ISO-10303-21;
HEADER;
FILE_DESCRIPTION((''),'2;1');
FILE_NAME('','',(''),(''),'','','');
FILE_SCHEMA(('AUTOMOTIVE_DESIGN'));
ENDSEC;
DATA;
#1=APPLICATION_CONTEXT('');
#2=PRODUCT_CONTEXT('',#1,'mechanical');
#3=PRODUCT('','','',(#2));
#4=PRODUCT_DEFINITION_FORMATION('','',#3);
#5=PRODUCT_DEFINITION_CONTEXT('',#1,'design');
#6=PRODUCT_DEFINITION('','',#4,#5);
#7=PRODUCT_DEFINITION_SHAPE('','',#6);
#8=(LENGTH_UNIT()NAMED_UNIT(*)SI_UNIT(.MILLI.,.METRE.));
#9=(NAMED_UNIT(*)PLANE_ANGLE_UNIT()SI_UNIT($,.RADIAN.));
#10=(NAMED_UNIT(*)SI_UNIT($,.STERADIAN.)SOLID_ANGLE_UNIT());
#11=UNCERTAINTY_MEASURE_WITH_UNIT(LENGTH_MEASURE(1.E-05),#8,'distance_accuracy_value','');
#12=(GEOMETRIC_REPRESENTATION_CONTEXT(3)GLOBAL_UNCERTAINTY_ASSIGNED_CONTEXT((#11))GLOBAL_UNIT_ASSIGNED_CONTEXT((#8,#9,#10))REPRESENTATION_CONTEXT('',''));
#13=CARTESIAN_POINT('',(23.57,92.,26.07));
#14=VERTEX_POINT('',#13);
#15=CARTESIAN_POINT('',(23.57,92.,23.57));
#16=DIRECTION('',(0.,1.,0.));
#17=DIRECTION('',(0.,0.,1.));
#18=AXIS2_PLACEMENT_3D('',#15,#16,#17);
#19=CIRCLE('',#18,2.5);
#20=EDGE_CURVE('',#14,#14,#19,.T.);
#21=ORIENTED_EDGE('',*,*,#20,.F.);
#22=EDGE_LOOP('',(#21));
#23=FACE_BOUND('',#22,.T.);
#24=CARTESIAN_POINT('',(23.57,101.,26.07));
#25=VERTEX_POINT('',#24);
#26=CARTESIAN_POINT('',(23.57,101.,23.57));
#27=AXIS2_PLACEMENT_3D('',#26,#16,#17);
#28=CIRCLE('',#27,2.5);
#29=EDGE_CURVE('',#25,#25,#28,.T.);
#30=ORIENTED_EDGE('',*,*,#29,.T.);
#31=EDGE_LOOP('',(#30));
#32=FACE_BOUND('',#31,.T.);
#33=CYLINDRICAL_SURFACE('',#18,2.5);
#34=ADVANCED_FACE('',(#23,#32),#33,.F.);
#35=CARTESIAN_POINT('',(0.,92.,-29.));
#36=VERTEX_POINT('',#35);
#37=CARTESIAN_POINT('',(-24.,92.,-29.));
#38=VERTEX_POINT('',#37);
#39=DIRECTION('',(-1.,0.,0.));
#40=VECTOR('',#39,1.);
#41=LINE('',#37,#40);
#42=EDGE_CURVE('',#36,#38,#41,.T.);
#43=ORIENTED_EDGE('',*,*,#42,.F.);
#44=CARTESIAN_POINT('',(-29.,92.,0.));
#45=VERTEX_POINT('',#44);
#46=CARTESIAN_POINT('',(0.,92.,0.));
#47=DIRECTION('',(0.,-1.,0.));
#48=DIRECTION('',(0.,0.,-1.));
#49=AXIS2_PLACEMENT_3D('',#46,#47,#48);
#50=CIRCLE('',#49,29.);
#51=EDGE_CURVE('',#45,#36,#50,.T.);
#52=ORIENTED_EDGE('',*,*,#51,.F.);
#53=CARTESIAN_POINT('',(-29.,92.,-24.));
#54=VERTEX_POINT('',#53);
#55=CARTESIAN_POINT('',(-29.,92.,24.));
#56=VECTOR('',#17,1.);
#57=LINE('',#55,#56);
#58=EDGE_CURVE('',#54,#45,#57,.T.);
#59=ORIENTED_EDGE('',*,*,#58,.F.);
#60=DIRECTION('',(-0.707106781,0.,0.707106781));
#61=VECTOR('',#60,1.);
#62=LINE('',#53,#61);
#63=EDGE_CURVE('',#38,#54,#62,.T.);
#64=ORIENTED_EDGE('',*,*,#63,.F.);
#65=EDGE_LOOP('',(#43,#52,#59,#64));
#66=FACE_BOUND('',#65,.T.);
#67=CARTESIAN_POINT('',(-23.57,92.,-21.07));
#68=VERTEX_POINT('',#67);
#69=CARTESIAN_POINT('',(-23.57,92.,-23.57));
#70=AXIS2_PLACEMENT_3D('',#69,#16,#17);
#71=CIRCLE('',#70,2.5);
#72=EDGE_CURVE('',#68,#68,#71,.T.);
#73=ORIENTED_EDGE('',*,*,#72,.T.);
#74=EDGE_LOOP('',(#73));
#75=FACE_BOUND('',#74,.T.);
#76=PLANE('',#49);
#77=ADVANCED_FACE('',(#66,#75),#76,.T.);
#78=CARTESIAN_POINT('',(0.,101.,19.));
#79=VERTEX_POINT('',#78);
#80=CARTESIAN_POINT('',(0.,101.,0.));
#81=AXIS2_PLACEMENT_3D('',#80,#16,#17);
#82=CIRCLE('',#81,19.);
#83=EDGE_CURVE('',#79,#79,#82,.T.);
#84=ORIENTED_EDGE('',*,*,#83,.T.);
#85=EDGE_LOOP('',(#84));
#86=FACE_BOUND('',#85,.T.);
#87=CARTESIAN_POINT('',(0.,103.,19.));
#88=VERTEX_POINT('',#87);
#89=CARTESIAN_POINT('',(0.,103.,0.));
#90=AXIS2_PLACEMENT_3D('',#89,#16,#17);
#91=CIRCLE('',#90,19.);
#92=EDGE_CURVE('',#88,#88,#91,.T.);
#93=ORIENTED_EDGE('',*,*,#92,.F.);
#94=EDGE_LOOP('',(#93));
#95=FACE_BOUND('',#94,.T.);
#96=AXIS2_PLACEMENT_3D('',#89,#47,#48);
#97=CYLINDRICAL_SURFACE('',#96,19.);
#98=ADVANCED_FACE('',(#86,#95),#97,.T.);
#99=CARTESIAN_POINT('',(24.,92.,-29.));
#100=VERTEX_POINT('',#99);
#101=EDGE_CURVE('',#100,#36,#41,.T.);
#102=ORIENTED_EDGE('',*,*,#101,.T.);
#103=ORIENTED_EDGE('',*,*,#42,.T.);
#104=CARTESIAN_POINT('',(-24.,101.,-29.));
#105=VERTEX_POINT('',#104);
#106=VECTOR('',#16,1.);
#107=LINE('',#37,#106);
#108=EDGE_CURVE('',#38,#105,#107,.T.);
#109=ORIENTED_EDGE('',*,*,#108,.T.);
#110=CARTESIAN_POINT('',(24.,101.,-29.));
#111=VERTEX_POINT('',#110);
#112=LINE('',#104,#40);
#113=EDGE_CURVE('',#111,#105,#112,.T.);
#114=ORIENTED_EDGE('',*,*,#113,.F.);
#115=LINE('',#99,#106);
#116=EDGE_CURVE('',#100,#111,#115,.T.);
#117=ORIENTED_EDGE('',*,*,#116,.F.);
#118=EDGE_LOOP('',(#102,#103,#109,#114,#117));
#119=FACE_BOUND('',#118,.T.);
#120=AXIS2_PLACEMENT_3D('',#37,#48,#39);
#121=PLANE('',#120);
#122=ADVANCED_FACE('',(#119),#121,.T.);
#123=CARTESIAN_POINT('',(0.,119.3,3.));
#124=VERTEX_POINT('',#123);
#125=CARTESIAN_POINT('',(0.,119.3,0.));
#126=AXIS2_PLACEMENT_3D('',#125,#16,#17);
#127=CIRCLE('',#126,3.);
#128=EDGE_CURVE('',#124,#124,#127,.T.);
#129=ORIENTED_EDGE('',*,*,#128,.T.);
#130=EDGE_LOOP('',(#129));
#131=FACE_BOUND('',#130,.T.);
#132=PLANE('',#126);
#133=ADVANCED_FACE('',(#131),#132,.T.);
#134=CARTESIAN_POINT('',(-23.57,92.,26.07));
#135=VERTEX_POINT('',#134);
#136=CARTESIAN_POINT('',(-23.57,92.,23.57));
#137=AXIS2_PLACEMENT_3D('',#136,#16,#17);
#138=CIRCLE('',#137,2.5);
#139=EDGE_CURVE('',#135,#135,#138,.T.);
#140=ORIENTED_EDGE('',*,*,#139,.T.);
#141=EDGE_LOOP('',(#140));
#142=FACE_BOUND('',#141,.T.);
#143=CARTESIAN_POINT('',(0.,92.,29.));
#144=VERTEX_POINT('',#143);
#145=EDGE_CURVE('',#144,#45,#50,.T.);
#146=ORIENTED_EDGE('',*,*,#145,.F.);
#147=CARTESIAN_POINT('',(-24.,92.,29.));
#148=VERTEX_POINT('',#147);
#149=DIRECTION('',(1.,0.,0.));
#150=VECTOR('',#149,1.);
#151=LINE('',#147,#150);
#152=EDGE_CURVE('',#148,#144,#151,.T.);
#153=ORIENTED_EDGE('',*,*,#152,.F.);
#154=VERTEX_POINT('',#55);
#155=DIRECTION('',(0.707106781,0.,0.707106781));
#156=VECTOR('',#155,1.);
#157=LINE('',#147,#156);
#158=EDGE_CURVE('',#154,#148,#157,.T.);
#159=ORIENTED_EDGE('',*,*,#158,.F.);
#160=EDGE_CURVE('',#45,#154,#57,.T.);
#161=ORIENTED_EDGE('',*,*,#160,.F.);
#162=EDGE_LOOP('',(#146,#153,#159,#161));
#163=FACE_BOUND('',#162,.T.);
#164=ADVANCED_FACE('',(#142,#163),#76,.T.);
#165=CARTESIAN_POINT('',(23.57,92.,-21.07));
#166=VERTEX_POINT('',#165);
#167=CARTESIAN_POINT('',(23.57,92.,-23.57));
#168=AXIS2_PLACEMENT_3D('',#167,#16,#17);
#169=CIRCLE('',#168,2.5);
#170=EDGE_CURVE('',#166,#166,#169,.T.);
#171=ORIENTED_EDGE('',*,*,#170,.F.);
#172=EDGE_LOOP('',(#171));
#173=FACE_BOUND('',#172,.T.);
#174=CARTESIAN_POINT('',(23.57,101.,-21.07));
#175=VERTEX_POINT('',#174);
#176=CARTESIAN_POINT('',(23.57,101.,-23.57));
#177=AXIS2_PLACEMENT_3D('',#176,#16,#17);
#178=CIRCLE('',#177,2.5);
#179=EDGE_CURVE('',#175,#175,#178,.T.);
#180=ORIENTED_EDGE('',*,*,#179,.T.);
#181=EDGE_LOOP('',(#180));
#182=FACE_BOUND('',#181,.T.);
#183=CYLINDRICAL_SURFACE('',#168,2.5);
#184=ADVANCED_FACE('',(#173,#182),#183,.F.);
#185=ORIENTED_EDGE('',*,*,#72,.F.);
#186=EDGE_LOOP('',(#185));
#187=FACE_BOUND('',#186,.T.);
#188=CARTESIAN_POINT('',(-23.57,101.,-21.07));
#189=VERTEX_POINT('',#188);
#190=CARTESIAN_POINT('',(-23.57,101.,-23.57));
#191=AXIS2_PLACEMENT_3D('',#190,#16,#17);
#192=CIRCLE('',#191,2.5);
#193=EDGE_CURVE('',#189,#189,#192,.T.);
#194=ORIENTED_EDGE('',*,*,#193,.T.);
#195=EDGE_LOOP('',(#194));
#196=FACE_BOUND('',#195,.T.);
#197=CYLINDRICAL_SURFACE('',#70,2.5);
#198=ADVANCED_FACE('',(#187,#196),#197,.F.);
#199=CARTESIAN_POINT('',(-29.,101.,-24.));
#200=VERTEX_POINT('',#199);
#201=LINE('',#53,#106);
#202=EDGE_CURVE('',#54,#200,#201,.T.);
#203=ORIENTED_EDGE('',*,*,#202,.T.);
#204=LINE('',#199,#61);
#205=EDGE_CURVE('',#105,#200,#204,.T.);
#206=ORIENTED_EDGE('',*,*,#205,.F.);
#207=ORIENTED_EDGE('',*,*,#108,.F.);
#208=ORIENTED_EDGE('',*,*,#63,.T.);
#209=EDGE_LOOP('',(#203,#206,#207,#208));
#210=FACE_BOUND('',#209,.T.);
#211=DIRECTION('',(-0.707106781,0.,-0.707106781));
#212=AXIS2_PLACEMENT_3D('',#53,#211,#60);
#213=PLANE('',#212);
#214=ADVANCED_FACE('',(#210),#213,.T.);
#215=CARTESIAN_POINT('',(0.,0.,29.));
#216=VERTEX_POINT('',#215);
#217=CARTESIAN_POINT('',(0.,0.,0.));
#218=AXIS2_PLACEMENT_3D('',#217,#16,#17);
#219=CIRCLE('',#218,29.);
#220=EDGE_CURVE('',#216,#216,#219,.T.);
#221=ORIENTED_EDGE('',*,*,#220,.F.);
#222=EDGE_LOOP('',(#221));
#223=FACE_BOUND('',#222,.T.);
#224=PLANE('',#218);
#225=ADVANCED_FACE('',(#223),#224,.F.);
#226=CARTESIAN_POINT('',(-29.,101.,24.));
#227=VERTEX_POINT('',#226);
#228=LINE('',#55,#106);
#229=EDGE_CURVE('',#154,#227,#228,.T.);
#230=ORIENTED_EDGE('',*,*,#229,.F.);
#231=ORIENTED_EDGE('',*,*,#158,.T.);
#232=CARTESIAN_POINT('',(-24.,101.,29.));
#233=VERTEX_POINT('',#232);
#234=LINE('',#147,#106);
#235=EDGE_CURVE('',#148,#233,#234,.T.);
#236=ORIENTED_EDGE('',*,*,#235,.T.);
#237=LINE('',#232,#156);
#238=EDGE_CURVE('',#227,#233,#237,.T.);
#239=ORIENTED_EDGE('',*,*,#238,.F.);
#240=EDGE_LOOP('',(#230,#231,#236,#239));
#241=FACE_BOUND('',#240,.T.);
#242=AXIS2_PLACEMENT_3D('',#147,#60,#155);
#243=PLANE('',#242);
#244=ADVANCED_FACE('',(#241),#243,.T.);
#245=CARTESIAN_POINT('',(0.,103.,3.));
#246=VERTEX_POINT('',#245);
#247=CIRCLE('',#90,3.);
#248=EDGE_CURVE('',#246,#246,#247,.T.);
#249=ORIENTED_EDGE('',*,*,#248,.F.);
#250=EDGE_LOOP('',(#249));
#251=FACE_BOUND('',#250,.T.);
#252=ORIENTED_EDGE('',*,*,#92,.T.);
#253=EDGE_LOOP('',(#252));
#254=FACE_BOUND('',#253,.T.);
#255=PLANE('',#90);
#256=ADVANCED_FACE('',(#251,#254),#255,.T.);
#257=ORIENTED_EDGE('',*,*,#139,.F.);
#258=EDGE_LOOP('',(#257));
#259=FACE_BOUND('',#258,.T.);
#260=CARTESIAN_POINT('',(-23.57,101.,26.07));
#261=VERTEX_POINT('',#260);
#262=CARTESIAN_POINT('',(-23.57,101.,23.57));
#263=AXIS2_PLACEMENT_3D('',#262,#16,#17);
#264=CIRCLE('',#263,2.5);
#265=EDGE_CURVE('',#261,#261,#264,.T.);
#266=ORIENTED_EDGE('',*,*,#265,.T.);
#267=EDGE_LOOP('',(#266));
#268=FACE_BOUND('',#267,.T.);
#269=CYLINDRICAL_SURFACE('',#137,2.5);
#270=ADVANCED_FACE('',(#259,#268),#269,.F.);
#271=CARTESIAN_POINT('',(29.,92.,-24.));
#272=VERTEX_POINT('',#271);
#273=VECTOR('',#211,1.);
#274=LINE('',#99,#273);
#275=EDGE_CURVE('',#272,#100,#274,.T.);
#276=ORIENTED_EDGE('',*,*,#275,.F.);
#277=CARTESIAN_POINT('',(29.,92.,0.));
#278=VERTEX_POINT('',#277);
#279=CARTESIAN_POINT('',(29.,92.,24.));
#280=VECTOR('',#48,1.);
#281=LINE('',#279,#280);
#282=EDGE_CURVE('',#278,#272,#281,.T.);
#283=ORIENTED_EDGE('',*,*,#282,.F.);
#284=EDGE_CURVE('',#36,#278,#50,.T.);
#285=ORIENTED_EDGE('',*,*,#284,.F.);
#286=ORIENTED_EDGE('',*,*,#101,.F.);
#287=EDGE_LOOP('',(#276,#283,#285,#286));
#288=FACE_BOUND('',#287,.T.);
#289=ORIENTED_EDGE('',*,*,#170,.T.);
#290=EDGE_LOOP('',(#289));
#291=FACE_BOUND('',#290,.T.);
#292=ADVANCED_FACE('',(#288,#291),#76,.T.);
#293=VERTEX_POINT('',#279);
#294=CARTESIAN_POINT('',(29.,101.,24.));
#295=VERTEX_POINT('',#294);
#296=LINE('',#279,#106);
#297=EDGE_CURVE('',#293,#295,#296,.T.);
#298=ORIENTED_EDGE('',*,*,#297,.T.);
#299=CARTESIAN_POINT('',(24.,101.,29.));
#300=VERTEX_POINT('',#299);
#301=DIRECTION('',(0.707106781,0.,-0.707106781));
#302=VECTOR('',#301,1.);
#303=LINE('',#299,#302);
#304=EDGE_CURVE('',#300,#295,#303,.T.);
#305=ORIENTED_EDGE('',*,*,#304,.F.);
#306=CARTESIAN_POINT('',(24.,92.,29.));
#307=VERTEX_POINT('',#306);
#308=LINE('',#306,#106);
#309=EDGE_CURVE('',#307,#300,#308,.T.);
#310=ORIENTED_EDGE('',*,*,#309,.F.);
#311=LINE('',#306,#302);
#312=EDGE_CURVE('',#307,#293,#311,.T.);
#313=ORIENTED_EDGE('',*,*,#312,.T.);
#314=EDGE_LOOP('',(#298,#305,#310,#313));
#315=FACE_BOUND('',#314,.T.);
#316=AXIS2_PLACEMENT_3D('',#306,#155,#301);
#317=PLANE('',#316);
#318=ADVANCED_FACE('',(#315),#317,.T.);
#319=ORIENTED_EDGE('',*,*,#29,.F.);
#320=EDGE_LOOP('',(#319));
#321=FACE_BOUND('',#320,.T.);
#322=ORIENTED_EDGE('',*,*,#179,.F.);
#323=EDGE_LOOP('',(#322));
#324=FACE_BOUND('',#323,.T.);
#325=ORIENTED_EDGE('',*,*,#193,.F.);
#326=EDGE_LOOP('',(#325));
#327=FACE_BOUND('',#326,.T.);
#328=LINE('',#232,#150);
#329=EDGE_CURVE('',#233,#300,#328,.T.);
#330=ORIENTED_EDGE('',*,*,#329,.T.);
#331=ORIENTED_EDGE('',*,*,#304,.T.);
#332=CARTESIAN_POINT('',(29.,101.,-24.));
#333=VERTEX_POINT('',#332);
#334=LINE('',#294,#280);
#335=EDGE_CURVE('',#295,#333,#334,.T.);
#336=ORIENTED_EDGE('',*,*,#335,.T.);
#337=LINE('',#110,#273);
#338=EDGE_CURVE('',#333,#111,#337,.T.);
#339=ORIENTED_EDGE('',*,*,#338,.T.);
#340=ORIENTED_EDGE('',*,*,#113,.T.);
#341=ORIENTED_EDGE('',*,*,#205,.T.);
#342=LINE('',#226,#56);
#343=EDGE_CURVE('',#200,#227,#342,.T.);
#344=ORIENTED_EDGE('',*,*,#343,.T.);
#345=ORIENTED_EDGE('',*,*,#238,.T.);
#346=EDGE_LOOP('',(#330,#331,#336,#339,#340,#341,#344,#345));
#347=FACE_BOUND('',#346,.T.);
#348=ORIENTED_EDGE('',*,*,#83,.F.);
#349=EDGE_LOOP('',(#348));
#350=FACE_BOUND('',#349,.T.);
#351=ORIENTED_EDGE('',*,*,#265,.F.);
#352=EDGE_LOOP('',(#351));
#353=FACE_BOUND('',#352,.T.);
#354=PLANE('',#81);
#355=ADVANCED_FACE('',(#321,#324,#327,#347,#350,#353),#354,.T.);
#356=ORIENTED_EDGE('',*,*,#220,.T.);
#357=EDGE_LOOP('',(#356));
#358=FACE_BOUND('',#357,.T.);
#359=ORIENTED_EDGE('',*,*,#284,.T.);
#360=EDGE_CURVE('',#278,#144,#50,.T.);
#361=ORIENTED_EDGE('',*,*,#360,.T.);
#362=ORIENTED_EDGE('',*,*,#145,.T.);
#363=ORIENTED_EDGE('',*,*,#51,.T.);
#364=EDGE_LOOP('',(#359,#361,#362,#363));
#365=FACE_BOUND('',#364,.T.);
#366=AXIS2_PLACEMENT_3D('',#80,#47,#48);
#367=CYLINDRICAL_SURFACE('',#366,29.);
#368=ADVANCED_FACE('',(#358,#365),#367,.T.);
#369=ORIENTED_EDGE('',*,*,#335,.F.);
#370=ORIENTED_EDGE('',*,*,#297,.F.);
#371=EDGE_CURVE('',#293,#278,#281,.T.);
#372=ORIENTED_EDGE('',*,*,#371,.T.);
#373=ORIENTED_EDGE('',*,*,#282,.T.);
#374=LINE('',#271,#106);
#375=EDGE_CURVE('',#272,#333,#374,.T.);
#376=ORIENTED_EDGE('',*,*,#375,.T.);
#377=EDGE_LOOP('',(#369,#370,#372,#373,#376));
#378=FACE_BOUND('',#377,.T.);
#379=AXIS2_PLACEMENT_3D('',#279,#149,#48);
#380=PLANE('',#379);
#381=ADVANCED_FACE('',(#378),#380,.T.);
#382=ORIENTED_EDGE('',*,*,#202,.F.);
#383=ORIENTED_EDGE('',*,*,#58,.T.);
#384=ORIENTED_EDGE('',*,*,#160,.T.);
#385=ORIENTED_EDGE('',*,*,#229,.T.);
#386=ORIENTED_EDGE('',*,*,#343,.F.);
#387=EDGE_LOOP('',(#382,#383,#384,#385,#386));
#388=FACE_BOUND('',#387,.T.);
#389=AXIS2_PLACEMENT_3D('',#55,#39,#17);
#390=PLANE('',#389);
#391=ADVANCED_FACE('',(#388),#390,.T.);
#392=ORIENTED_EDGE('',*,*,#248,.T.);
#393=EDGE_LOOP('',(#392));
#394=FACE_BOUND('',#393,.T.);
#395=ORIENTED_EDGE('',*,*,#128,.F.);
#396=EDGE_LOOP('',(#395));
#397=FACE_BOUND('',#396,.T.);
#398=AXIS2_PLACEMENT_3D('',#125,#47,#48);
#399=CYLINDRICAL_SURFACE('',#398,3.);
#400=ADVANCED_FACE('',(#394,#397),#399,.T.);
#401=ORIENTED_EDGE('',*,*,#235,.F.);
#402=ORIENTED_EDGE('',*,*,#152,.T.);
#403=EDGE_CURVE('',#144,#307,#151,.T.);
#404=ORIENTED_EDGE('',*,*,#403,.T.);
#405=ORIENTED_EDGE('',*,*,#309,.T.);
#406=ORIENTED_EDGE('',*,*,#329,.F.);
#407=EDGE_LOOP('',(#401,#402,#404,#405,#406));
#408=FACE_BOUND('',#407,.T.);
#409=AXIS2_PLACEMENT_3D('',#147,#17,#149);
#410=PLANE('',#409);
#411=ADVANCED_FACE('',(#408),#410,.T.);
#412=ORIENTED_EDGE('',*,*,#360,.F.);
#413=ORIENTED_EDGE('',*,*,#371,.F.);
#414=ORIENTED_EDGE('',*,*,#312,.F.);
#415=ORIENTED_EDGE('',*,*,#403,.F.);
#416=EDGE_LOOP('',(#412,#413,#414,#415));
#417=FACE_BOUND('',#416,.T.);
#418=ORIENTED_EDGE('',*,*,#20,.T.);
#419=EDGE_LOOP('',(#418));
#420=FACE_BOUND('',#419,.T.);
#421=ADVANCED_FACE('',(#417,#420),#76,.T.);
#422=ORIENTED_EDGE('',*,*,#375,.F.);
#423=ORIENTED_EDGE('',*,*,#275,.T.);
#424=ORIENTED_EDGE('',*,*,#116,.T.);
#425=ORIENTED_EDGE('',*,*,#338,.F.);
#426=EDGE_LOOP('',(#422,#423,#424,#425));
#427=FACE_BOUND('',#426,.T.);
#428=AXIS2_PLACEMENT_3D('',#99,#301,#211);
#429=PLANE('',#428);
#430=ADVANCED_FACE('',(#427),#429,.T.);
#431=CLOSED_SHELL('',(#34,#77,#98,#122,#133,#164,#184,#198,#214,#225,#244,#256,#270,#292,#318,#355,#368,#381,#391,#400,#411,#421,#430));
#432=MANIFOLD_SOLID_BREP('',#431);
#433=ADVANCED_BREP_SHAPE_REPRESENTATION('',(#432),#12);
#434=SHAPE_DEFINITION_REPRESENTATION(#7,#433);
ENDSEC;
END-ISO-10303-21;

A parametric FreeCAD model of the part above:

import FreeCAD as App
import Part
import Sketcher
from FreeCAD import Vector
Q = App.Units.Quantity

doc = App.newDocument("Part")
body = doc.addObject("PartDesign::Body", "Body")

sketch1 = doc.addObject("Sketcher::SketchObject", "Sketch")
body.addObject(sketch1)
sketch1.AttachmentSupport = (doc.XZ_Plane, [""])
sketch1.MapMode = "FlatFace"
sketch1.addGeometry(Part.Circle(Vector(0, 0, 0), Vector(0, 0, 1), 29), False)
sketch1.addConstraint(Sketcher.Constraint("Coincident", 0, 3, -1, 1))
sketch1.addConstraint(Sketcher.Constraint("Diameter", 0, Q("58 mm")))
pad1 = doc.addObject("PartDesign::Pad", "Pad")
body.addObject(pad1)
pad1.Profile = sketch1
pad1.Length = 101
pad1.Reversed = True

sketch2 = doc.addObject("Sketcher::SketchObject", "Sketch001")
body.addObject(sketch2)
sketch2.AttachmentSupport = (doc.XZ_Plane, [""])
sketch2.MapMode = "FlatFace"
sketch2.AttachmentOffset = App.Placement(Vector(0, 0, -101), App.Rotation())
sketch2.addGeometry(Part.LineSegment(Vector(-24, -29, 0), Vector(-29, -24, 0)), False)
sketch2.addGeometry(Part.LineSegment(Vector(-29, -24, 0), Vector(-29, 24, 0)), False)
sketch2.addGeometry(Part.LineSegment(Vector(-29, 24, 0), Vector(-24, 29, 0)), False)
sketch2.addGeometry(Part.LineSegment(Vector(-24, 29, 0), Vector(24, 29, 0)), False)
sketch2.addGeometry(Part.LineSegment(Vector(24, 29, 0), Vector(29, 24, 0)), False)
sketch2.addGeometry(Part.LineSegment(Vector(29, 24, 0), Vector(29, -24, 0)), False)
sketch2.addGeometry(Part.LineSegment(Vector(29, -24, 0), Vector(24, -29, 0)), False)
sketch2.addGeometry(Part.LineSegment(Vector(24, -29, 0), Vector(-24, -29, 0)), False)
sketch2.addGeometry(Part.Circle(Vector(23.57, 23.57, 0), Vector(0, 0, 1), 2.5), False)
sketch2.addGeometry(Part.Circle(Vector(-23.57, 23.57, 0), Vector(0, 0, 1), 2.5), False)
sketch2.addGeometry(Part.Circle(Vector(23.57, -23.57, 0), Vector(0, 0, 1), 2.5), False)
sketch2.addGeometry(Part.Circle(Vector(-23.57, -23.57, 0), Vector(0, 0, 1), 2.5), False)
sketch2.addConstraint(Sketcher.Constraint("Coincident", 0, 2, 1, 1))
sketch2.addConstraint(Sketcher.Constraint("Coincident", 1, 2, 2, 1))
sketch2.addConstraint(Sketcher.Constraint("Coincident", 2, 2, 3, 1))
sketch2.addConstraint(Sketcher.Constraint("Coincident", 3, 2, 4, 1))
sketch2.addConstraint(Sketcher.Constraint("Coincident", 4, 2, 5, 1))
sketch2.addConstraint(Sketcher.Constraint("Coincident", 5, 2, 6, 1))
sketch2.addConstraint(Sketcher.Constraint("Coincident", 6, 2, 7, 1))
sketch2.addConstraint(Sketcher.Constraint("Coincident", 7, 2, 0, 1))
sketch2.addConstraint(Sketcher.Constraint("Vertical", 1))
sketch2.addConstraint(Sketcher.Constraint("Horizontal", 3))
sketch2.addConstraint(Sketcher.Constraint("Vertical", 5))
sketch2.addConstraint(Sketcher.Constraint("Horizontal", 7))
sketch2.addConstraint(Sketcher.Constraint("Equal", 8, 9))
sketch2.addConstraint(Sketcher.Constraint("Equal", 9, 10))
sketch2.addConstraint(Sketcher.Constraint("Equal", 10, 11))
sketch2.addConstraint(Sketcher.Constraint("Symmetric", 9, 3, 10, 3, -1, 1))
sketch2.addConstraint(Sketcher.Constraint("Symmetric", 8, 3, 11, 3, -1, 1))
sketch2.addConstraint(Sketcher.Constraint("Symmetric", 0, 2, 4, 2, -1, 1))
sketch2.addConstraint(Sketcher.Constraint("Symmetric", 2, 2, 6, 2, -1, 1))
sketch2.addConstraint(Sketcher.Constraint("Symmetric", 8, 3, 9, 3, -2))
sketch2.addConstraint(Sketcher.Constraint("Perpendicular", 0, 2))
sketch2.addConstraint(Sketcher.Constraint("Perpendicular", 2, 4))
sketch2.addConstraint(Sketcher.Constraint("Perpendicular", 4, 6))
sketch2.addConstraint(Sketcher.Constraint("Horizontal", 1, 2, 4, 2))
sketch2.addConstraint(Sketcher.Constraint("Vertical", 3, 2, 6, 2))
sketch2.addConstraint(Sketcher.Constraint("Equal", 7, 1))
sketch2.addConstraint(Sketcher.Constraint("Diameter", 8, Q("5 mm")))
sketch2.addConstraint(Sketcher.Constraint("DistanceX", 3, 1, 3, 2, Q("48 mm")))
sketch2.addConstraint(Sketcher.Constraint("DistanceX", 0, 2, -1, 1, Q("29 mm")))
sketch2.addConstraint(Sketcher.Constraint("DistanceX", -1, 1, 8, 3, Q("23.57 mm")))
sketch2.addConstraint(Sketcher.Constraint("DistanceY", -1, 1, 8, 3, Q("23.57 mm")))
pad2 = doc.addObject("PartDesign::Pad", "Pad001")
body.addObject(pad2)
pad2.Profile = sketch2
pad2.Length = 9

sketch3 = doc.addObject("Sketcher::SketchObject", "Sketch002")
body.addObject(sketch3)
sketch3.AttachmentSupport = (doc.XZ_Plane, [""])
sketch3.MapMode = "FlatFace"
sketch3.AttachmentOffset = App.Placement(Vector(0, 0, -101), App.Rotation())
sketch3.addGeometry(Part.Circle(Vector(0, 0, 0), Vector(0, 0, 1), 19), False)
sketch3.addConstraint(Sketcher.Constraint("Coincident", 0, 3, -1, 1))
sketch3.addConstraint(Sketcher.Constraint("Diameter", 0, Q("38 mm")))
pad3 = doc.addObject("PartDesign::Pad", "Pad002")
body.addObject(pad3)
pad3.Profile = sketch3
pad3.Length = 2
pad3.Reversed = True

sketch4 = doc.addObject("Sketcher::SketchObject", "Sketch003")
body.addObject(sketch4)
sketch4.AttachmentSupport = (doc.XZ_Plane, [""])
sketch4.MapMode = "FlatFace"
sketch4.AttachmentOffset = App.Placement(Vector(0, 0, -103), App.Rotation())
sketch4.addGeometry(Part.Circle(Vector(0, 0, 0), Vector(0, 0, 1), 3), False)
sketch4.addConstraint(Sketcher.Constraint("Coincident", 0, 3, -1, 1))
sketch4.addConstraint(Sketcher.Constraint("Diameter", 0, Q("6 mm")))
pad4 = doc.addObject("PartDesign::Pad", "Pad003")
body.addObject(pad4)
pad4.Profile = sketch4
pad4.Length = 16.3
pad4.Reversed = True

doc.recompute()
